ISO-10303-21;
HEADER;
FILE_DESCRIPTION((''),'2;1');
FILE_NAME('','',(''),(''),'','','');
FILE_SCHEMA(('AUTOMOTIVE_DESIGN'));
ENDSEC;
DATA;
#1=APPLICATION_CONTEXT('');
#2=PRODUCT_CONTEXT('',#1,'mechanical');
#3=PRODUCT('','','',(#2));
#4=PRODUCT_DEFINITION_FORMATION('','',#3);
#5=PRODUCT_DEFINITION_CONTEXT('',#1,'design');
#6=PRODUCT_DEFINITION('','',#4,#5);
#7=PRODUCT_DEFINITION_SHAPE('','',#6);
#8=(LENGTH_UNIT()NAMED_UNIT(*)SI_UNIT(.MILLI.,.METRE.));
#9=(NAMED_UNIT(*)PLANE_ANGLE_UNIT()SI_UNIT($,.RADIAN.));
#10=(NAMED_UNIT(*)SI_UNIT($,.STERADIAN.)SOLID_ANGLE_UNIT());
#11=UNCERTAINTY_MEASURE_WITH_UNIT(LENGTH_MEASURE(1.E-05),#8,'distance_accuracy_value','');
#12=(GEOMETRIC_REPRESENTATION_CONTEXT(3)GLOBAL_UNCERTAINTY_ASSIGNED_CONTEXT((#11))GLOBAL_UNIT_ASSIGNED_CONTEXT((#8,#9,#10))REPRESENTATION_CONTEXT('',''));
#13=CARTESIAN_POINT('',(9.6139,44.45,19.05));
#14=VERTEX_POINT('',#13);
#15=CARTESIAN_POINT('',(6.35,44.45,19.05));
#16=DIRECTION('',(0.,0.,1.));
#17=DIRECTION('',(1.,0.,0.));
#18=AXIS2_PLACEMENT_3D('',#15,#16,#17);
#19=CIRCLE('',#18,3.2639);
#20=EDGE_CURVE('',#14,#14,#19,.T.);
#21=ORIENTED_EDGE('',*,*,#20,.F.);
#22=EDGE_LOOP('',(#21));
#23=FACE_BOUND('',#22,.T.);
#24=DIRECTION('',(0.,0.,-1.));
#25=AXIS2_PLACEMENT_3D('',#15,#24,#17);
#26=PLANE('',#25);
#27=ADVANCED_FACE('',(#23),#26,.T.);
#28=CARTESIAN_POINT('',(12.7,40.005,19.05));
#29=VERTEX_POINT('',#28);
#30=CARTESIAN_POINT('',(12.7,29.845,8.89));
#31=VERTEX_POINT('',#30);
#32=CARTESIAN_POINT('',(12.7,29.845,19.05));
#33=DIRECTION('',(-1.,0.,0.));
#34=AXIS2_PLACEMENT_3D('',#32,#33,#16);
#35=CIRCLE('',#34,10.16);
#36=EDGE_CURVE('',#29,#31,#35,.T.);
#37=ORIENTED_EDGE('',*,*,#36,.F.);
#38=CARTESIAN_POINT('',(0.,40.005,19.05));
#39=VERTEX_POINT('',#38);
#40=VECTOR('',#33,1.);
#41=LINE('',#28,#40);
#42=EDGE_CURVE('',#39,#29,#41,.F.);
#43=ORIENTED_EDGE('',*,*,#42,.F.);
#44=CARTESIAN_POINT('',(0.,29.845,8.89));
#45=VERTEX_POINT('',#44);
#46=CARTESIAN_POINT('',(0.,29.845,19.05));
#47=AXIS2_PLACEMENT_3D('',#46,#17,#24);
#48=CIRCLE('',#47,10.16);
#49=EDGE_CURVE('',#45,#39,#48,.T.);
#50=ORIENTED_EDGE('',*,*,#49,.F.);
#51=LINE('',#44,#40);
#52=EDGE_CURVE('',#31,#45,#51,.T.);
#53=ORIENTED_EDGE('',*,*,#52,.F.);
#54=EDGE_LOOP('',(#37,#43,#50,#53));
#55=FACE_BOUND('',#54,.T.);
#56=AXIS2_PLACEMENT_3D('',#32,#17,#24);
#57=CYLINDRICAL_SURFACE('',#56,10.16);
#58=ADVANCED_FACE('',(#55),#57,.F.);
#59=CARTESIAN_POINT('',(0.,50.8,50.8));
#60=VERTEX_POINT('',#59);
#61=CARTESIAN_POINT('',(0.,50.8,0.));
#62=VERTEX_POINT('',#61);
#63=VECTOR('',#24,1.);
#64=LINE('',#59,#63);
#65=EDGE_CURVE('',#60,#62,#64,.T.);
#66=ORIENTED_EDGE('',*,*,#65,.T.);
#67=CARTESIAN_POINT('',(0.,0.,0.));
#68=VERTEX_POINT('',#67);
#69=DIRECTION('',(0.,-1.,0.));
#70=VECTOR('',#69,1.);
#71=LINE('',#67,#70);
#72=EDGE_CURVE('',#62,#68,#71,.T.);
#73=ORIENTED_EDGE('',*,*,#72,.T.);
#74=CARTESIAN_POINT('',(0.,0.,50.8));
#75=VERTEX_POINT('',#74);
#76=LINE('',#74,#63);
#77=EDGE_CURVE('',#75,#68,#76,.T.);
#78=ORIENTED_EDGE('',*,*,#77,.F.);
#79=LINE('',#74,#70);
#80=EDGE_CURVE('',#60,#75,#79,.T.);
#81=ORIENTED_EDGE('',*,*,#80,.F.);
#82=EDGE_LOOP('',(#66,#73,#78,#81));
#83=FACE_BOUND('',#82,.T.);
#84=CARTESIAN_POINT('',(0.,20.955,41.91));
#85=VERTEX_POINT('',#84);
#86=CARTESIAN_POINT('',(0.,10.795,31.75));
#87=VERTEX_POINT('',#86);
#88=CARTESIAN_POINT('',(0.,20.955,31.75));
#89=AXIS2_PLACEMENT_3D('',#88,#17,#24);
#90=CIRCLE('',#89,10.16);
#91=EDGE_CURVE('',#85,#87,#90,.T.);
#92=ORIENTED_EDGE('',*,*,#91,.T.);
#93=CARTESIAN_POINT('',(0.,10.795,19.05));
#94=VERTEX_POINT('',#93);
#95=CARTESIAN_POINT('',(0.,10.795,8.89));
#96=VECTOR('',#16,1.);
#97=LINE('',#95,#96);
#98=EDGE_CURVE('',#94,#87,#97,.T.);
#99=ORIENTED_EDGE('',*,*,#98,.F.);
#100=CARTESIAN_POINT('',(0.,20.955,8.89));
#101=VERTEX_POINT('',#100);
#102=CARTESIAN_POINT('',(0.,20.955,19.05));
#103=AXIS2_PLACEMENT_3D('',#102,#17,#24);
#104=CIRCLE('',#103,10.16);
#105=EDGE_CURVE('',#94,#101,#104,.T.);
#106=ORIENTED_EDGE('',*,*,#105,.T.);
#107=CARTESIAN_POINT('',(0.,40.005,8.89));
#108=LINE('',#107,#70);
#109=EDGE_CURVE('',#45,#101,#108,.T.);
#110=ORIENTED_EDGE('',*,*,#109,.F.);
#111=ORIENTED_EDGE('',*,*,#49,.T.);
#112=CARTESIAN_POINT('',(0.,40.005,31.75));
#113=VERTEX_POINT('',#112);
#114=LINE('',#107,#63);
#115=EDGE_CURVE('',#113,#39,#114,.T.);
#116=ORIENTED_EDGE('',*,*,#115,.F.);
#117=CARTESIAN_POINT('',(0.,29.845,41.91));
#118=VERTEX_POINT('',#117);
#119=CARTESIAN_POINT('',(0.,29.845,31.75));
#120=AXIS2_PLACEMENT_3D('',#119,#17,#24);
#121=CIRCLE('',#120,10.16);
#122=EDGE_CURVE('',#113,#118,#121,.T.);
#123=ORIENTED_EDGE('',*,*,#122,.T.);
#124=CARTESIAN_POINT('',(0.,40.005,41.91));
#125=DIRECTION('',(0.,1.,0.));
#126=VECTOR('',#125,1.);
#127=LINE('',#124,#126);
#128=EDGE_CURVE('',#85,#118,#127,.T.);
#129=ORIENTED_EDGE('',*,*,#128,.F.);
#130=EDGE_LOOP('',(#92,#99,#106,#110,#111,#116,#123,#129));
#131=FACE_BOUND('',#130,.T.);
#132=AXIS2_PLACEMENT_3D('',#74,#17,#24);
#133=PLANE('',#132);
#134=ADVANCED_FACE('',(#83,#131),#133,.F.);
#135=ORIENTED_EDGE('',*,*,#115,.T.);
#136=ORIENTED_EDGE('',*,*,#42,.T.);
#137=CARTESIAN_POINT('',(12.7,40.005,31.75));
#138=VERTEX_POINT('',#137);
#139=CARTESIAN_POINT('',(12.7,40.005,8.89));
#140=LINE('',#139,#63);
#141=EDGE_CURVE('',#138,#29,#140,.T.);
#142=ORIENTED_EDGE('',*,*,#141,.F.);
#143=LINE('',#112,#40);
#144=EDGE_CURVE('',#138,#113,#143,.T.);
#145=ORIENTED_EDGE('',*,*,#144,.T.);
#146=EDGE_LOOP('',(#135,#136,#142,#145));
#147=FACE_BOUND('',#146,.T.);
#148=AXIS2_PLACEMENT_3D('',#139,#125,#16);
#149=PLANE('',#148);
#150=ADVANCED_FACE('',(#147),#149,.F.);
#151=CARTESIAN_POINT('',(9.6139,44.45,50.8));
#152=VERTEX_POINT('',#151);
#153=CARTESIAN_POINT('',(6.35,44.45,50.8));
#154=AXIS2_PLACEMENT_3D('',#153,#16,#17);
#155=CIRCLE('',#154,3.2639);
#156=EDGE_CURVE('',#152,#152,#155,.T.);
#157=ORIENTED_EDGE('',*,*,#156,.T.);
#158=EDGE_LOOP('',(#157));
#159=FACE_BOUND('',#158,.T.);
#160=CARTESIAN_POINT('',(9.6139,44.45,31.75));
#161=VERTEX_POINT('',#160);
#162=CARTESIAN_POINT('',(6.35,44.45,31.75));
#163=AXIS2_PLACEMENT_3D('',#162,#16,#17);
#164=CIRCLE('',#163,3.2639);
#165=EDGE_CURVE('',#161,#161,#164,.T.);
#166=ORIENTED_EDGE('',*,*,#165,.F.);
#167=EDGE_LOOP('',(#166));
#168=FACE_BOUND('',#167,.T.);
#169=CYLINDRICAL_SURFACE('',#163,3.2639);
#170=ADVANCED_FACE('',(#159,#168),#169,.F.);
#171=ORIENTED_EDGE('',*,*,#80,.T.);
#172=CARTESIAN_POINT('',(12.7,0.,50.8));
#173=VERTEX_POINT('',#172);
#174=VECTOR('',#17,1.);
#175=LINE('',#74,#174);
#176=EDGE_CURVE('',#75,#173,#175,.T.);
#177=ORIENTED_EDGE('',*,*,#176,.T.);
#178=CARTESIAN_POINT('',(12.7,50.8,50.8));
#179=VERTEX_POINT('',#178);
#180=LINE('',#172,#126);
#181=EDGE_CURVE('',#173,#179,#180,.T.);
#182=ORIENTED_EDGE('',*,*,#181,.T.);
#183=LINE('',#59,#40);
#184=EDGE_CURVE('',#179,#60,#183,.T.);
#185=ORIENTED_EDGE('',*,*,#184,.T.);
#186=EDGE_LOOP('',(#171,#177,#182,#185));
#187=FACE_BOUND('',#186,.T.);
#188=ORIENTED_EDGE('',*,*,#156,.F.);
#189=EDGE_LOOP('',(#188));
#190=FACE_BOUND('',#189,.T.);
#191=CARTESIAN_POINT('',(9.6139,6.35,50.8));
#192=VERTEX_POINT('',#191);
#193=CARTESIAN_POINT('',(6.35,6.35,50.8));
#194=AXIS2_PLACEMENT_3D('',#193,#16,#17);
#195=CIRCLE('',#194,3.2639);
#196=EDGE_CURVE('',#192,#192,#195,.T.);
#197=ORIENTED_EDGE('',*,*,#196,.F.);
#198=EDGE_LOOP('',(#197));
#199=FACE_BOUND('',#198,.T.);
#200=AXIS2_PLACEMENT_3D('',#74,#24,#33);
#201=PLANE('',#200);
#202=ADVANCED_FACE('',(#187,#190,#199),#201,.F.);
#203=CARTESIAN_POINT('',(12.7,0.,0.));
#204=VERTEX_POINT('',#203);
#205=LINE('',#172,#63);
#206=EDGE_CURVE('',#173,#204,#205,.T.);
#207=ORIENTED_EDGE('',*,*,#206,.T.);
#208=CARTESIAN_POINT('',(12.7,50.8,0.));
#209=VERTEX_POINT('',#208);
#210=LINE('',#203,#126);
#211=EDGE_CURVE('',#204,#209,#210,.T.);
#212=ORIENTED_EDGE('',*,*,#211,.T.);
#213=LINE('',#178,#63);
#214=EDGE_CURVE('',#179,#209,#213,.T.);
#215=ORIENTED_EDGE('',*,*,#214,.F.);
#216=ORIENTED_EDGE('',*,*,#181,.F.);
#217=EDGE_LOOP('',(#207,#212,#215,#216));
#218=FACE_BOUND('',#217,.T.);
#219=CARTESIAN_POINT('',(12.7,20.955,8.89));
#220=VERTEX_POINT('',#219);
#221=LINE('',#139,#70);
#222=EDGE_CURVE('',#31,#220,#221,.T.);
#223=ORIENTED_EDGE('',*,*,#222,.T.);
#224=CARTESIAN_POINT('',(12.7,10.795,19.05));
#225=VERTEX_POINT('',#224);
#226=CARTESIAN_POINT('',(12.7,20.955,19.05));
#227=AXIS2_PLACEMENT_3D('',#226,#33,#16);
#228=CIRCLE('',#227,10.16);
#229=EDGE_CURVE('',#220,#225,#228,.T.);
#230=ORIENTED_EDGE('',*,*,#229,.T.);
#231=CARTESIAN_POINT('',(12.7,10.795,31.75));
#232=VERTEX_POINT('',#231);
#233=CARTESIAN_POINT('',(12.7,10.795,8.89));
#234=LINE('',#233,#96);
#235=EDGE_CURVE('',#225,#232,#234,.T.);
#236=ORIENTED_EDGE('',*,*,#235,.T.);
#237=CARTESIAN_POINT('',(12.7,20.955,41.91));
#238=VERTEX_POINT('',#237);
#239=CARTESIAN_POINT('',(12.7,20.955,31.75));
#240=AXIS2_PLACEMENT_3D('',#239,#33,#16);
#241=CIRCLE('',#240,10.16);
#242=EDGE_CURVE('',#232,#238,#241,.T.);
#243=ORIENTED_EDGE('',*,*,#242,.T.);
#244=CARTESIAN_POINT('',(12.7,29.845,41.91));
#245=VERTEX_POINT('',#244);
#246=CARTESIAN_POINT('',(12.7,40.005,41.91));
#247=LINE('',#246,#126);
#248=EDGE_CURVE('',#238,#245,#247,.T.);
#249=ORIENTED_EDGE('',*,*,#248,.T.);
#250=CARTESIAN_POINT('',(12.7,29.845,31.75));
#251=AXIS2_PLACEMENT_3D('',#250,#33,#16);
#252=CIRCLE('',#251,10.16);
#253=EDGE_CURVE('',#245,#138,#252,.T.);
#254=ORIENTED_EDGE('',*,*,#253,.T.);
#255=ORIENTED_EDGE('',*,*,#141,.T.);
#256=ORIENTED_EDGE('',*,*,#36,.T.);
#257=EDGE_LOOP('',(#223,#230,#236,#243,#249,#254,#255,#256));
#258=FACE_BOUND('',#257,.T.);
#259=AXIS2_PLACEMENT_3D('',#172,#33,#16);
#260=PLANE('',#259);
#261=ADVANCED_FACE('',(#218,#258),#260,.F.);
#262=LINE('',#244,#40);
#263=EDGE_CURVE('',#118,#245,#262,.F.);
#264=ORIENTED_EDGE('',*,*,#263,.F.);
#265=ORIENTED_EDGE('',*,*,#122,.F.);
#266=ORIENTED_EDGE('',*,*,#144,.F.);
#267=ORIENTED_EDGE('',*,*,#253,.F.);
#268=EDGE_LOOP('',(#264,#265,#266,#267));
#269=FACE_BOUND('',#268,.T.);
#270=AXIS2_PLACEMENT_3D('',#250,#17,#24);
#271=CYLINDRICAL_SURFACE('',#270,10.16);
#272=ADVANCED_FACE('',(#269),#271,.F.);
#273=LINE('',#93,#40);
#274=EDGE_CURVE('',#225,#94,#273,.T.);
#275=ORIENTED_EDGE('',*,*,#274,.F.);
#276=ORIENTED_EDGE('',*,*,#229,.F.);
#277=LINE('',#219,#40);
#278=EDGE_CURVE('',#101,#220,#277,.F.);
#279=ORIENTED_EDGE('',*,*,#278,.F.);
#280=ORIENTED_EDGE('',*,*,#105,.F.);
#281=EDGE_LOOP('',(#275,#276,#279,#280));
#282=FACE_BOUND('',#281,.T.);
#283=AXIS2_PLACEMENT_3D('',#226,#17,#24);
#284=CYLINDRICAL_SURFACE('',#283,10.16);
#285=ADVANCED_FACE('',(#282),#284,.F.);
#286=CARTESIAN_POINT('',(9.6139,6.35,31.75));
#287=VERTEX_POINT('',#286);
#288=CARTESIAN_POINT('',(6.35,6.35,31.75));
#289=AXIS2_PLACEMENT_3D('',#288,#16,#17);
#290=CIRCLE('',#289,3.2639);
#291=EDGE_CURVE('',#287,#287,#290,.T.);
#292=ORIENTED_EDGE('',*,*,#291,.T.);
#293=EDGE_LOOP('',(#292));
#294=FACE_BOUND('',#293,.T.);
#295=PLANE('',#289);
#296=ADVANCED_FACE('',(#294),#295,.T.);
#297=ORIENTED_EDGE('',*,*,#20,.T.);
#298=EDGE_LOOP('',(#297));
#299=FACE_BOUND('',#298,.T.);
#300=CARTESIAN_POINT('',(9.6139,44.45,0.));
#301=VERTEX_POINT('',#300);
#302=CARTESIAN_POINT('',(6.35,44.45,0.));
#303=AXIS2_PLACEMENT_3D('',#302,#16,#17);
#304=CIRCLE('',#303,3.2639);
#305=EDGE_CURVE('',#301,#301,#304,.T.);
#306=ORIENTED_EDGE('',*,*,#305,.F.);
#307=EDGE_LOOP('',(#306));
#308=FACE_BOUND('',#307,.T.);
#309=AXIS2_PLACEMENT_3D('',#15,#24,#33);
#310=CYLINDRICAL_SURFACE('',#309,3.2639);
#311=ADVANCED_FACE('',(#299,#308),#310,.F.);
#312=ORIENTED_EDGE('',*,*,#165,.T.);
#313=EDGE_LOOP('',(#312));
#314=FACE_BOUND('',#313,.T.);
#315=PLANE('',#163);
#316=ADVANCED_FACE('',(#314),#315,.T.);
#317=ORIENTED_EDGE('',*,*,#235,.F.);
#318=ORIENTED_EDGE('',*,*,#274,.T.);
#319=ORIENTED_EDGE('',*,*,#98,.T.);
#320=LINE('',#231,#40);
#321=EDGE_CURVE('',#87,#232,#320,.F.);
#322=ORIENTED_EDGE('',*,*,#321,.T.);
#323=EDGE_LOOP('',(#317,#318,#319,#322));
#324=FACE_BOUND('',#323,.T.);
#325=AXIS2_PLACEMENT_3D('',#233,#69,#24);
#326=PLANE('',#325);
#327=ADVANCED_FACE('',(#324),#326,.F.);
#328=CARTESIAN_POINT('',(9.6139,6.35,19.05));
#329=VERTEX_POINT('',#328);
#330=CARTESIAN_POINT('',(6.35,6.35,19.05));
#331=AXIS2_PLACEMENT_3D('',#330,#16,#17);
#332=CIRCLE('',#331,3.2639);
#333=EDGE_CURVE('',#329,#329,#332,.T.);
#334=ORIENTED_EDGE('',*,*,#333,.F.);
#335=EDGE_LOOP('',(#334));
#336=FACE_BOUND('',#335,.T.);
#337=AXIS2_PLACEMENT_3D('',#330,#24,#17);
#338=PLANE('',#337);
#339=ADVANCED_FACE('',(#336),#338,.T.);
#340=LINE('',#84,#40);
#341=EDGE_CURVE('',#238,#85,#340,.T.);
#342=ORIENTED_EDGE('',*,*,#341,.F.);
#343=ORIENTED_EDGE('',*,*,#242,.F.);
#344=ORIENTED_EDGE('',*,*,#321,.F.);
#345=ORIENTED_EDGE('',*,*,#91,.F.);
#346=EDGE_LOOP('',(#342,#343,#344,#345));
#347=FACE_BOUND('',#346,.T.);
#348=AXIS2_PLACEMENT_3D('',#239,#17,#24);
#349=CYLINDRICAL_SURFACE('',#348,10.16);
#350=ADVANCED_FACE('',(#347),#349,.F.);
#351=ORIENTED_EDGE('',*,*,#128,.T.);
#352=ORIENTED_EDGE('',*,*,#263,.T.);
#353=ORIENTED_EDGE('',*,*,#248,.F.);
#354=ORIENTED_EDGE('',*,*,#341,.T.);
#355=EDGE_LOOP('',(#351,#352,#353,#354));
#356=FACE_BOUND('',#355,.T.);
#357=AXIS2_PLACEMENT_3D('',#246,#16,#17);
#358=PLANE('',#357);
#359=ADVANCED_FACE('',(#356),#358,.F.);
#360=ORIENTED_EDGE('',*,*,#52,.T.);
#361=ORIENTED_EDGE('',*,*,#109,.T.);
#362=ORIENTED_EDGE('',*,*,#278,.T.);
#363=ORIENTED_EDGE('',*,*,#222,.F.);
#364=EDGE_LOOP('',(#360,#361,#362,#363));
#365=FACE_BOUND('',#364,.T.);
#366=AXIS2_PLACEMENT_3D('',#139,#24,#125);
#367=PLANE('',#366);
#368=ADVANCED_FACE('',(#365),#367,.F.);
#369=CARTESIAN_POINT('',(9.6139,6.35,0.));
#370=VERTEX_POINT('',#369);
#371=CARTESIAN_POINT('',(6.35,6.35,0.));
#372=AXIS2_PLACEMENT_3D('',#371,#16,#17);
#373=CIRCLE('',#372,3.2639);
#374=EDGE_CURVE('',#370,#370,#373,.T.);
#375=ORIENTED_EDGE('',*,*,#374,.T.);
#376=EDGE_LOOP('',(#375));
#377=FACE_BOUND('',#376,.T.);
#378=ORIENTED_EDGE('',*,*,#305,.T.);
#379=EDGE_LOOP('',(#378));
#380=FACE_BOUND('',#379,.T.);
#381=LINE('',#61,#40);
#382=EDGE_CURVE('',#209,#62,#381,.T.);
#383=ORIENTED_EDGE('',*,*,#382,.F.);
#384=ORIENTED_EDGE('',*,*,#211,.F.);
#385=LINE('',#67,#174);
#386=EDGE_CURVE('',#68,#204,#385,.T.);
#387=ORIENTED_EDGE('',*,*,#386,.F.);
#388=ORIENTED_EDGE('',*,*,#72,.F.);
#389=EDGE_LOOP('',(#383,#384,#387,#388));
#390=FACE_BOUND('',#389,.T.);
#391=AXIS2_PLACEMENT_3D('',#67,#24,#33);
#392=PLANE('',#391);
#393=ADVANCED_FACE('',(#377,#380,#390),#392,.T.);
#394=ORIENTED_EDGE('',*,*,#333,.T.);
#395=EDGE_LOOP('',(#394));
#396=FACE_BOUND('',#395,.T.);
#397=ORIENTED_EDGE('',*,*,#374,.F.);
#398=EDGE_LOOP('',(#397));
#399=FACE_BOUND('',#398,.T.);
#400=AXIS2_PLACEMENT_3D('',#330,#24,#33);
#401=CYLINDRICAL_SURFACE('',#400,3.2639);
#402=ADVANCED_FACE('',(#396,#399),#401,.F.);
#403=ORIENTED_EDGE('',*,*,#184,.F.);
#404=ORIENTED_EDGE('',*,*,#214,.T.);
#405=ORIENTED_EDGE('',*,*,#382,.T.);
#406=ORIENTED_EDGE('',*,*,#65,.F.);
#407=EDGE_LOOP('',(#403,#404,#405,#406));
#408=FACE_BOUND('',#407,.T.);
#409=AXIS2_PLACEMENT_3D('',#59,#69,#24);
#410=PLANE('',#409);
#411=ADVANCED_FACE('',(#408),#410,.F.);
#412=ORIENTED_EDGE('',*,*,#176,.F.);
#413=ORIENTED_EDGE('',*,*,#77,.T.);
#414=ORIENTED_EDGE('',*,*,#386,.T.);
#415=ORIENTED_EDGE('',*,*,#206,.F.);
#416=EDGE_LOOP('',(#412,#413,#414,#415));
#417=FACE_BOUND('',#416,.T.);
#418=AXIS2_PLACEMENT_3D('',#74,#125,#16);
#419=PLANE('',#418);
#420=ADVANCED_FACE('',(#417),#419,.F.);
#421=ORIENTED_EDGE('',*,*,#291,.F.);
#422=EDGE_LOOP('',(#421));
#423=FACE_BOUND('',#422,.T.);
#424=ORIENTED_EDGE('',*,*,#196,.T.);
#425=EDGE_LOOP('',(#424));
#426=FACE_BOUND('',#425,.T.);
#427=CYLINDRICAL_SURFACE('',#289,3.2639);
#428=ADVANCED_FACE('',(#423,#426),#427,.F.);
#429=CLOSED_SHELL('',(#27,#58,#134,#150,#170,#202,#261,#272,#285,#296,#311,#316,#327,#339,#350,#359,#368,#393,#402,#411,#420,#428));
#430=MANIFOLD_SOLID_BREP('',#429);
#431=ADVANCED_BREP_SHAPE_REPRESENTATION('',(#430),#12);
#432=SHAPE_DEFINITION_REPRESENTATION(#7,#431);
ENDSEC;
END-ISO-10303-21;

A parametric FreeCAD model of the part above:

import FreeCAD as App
import Part
import Sketcher
Q = App.Units.Quantity


def edges_at(feature, points):
    """Names of the edges that pass closest to the given points."""
    edges = feature.Shape.Edges
    near = lambda p: min(range(len(edges)), key=lambda i: edges[i].distToShape(Part.Vertex(*p))[0])
    return sorted({f"Edge{near(p) + 1}" for p in points})


def add_polygon(sketch, points):
    """Adds a closed chain of lines whose ends are joined by coincident constraints."""
    first, n = sketch.GeometryCount, len(points)
    for a, b in zip(points, points[1:] + points[:1]):
        sketch.addGeometry(Part.LineSegment(App.Vector(*a, 0), App.Vector(*b, 0)), False)
    for i in range(n):
        sketch.addConstraint(Sketcher.Constraint("Coincident", first + i, 2, first + (i + 1) % n, 1))

doc = App.newDocument("Part")
params = doc.addObject("Spreadsheet::Sheet", "Params")
for row, (alias, value) in enumerate([
    ("sketch1_height", "2 in"),
    ("sketch1_width", "0.5 in"),
    ("pad1_length", "2 in"),
    ("sketch2_diameter", "0.257 in"),
    ("pocket1_length", "0.75 in"),
    ("sketch3_height", "1.3 in"),
    ("sketch3_width", "1.15 in"),
    ("fillet_radius", "0.4 in"),
], start=1):
    params.set(f"A{row}", alias)
    params.set(f"B{row}", "=" + value)
    params.setAlias(f"B{row}", alias)

body = doc.addObject("PartDesign::Body", "Body")

sketch1 = body.newObject("Sketcher::SketchObject", "Sketch")
sketch1.AttachmentSupport = (doc.getObject("XY_Plane"), [""])
sketch1.MapMode = "FlatFace"
add_polygon(sketch1, [(0, 51), (0, 0), (13, 0), (13, 51)])
sketch1.addConstraint([
    Sketcher.Constraint("Vertical", 0),
    Sketcher.Constraint("Horizontal", 1),
    Sketcher.Constraint("Vertical", 2),
    Sketcher.Constraint("Horizontal", 3),
    Sketcher.Constraint("Coincident", 0, 2, -1, 1),
    Sketcher.Constraint("DistanceY", 0, 2, 0, 1, Q("2 in")),
    Sketcher.Constraint("DistanceX", 1, 1, 1, 2, Q("0.5 in")),
])
sketch1.setExpression("Constraints[9]", "Params.sketch1_height")
sketch1.setExpression("Constraints[10]", "Params.sketch1_width")
pad1 = body.newObject("PartDesign::Pad", "Pad")
pad1.Profile = sketch1
pad1.setExpression("Length", "Params.pad1_length")

sketch2 = body.newObject("Sketcher::SketchObject", "Sketch001")
sketch2.AttachmentSupport = (doc.getObject("XY_Plane"), [""])
sketch2.MapMode = "FlatFace"
sketch2.AttachmentOffset = App.Placement(App.Vector(0, 0, 2 * 25.4), App.Rotation())
sketch2.addGeometry([
    Part.Circle(App.Vector(6.3, 44.5, 0), App.Vector(0, 0, 1), 3.3),
    Part.Circle(App.Vector(6.3, 6.3, 0), App.Vector(0, 0, 1), 3.3),
], False)
sketch2.addConstraint([
    Sketcher.Constraint("Equal", 0, 1),
    Sketcher.Constraint("Vertical", 0, 3, 1, 3),
    Sketcher.Constraint("Diameter", 0, Q("0.257 in")),
    Sketcher.Constraint("DistanceY", 1, 3, 0, 3, Q("1.5 in")),
    Sketcher.Constraint("DistanceX", -1, 1, 0, 3, Q("0.25 in")),
    Sketcher.Constraint("DistanceY", -1, 1, 0, 3, Q("1.75 in")),
])
sketch2.setExpression("Constraints[2]", "Params.sketch2_diameter")
pocket1 = body.newObject("PartDesign::Pocket", "Pocket")
pocket1.Profile = sketch2
pocket1.setExpression("Length", "Params.pocket1_length")
doc.recompute()

datumplane = body.newObject("PartDesign::Plane", "DatumPlane")
datumplane.AttachmentSupport = (doc.getObject("XY_Plane"), [""])
datumplane.MapMode = "FlatFace"
datumplane.AttachmentOffset = App.Placement(App.Vector(0, 0, 1 * 25.4), App.Rotation())
mirrored = body.newObject("PartDesign::Mirrored", "Mirrored")
mirrored.Originals = [pocket1]
mirrored.MirrorPlane = (datumplane, [""])
body.Tip = mirrored

sketch3 = body.newObject("Sketcher::SketchObject", "Sketch002")
sketch3.AttachmentSupport = (doc.getObject("YZ_Plane"), [""])
sketch3.MapMode = "FlatFace"
add_polygon(sketch3, [(40, 9), (11, 9), (11, 42), (40, 42)])
sketch3.addConstraint([
    Sketcher.Constraint("Horizontal", 0),
    Sketcher.Constraint("Vertical", 1),
    Sketcher.Constraint("Horizontal", 2),
    Sketcher.Constraint("Vertical", 3),
    Sketcher.Constraint("DistanceY", 1, 1, 1, 2, Q("1.3 in")),
    Sketcher.Constraint("DistanceX", 0, 2, 0, 1, Q("1.15 in")),
    Sketcher.Constraint("DistanceY", -1, 1, 0, 2, Q("0.35 in")),
    Sketcher.Constraint("DistanceX", -1, 1, 0, 2, Q("0.425 in")),
])
sketch3.setExpression("Constraints[8]", "Params.sketch3_height")
sketch3.setExpression("Constraints[9]", "Params.sketch3_width")
pocket2 = body.newObject("PartDesign::Pocket", "Pocket001")
pocket2.Profile = sketch3
pocket2.Type = "ThroughAll"
pocket2.Reversed = True
doc.recompute()

fillet = body.newObject("PartDesign::Fillet", "Fillet")
fillet.Base = (pocket2, edges_at(pocket2, [
    (6.35, 10.795, 8.89),
    (6.35, 40.005, 8.89),
    (6.35, 40.005, 41.91),
    (6.35, 10.795, 41.91),
]))
fillet.setExpression("Radius", "Params.fillet_radius")

doc.recompute()
